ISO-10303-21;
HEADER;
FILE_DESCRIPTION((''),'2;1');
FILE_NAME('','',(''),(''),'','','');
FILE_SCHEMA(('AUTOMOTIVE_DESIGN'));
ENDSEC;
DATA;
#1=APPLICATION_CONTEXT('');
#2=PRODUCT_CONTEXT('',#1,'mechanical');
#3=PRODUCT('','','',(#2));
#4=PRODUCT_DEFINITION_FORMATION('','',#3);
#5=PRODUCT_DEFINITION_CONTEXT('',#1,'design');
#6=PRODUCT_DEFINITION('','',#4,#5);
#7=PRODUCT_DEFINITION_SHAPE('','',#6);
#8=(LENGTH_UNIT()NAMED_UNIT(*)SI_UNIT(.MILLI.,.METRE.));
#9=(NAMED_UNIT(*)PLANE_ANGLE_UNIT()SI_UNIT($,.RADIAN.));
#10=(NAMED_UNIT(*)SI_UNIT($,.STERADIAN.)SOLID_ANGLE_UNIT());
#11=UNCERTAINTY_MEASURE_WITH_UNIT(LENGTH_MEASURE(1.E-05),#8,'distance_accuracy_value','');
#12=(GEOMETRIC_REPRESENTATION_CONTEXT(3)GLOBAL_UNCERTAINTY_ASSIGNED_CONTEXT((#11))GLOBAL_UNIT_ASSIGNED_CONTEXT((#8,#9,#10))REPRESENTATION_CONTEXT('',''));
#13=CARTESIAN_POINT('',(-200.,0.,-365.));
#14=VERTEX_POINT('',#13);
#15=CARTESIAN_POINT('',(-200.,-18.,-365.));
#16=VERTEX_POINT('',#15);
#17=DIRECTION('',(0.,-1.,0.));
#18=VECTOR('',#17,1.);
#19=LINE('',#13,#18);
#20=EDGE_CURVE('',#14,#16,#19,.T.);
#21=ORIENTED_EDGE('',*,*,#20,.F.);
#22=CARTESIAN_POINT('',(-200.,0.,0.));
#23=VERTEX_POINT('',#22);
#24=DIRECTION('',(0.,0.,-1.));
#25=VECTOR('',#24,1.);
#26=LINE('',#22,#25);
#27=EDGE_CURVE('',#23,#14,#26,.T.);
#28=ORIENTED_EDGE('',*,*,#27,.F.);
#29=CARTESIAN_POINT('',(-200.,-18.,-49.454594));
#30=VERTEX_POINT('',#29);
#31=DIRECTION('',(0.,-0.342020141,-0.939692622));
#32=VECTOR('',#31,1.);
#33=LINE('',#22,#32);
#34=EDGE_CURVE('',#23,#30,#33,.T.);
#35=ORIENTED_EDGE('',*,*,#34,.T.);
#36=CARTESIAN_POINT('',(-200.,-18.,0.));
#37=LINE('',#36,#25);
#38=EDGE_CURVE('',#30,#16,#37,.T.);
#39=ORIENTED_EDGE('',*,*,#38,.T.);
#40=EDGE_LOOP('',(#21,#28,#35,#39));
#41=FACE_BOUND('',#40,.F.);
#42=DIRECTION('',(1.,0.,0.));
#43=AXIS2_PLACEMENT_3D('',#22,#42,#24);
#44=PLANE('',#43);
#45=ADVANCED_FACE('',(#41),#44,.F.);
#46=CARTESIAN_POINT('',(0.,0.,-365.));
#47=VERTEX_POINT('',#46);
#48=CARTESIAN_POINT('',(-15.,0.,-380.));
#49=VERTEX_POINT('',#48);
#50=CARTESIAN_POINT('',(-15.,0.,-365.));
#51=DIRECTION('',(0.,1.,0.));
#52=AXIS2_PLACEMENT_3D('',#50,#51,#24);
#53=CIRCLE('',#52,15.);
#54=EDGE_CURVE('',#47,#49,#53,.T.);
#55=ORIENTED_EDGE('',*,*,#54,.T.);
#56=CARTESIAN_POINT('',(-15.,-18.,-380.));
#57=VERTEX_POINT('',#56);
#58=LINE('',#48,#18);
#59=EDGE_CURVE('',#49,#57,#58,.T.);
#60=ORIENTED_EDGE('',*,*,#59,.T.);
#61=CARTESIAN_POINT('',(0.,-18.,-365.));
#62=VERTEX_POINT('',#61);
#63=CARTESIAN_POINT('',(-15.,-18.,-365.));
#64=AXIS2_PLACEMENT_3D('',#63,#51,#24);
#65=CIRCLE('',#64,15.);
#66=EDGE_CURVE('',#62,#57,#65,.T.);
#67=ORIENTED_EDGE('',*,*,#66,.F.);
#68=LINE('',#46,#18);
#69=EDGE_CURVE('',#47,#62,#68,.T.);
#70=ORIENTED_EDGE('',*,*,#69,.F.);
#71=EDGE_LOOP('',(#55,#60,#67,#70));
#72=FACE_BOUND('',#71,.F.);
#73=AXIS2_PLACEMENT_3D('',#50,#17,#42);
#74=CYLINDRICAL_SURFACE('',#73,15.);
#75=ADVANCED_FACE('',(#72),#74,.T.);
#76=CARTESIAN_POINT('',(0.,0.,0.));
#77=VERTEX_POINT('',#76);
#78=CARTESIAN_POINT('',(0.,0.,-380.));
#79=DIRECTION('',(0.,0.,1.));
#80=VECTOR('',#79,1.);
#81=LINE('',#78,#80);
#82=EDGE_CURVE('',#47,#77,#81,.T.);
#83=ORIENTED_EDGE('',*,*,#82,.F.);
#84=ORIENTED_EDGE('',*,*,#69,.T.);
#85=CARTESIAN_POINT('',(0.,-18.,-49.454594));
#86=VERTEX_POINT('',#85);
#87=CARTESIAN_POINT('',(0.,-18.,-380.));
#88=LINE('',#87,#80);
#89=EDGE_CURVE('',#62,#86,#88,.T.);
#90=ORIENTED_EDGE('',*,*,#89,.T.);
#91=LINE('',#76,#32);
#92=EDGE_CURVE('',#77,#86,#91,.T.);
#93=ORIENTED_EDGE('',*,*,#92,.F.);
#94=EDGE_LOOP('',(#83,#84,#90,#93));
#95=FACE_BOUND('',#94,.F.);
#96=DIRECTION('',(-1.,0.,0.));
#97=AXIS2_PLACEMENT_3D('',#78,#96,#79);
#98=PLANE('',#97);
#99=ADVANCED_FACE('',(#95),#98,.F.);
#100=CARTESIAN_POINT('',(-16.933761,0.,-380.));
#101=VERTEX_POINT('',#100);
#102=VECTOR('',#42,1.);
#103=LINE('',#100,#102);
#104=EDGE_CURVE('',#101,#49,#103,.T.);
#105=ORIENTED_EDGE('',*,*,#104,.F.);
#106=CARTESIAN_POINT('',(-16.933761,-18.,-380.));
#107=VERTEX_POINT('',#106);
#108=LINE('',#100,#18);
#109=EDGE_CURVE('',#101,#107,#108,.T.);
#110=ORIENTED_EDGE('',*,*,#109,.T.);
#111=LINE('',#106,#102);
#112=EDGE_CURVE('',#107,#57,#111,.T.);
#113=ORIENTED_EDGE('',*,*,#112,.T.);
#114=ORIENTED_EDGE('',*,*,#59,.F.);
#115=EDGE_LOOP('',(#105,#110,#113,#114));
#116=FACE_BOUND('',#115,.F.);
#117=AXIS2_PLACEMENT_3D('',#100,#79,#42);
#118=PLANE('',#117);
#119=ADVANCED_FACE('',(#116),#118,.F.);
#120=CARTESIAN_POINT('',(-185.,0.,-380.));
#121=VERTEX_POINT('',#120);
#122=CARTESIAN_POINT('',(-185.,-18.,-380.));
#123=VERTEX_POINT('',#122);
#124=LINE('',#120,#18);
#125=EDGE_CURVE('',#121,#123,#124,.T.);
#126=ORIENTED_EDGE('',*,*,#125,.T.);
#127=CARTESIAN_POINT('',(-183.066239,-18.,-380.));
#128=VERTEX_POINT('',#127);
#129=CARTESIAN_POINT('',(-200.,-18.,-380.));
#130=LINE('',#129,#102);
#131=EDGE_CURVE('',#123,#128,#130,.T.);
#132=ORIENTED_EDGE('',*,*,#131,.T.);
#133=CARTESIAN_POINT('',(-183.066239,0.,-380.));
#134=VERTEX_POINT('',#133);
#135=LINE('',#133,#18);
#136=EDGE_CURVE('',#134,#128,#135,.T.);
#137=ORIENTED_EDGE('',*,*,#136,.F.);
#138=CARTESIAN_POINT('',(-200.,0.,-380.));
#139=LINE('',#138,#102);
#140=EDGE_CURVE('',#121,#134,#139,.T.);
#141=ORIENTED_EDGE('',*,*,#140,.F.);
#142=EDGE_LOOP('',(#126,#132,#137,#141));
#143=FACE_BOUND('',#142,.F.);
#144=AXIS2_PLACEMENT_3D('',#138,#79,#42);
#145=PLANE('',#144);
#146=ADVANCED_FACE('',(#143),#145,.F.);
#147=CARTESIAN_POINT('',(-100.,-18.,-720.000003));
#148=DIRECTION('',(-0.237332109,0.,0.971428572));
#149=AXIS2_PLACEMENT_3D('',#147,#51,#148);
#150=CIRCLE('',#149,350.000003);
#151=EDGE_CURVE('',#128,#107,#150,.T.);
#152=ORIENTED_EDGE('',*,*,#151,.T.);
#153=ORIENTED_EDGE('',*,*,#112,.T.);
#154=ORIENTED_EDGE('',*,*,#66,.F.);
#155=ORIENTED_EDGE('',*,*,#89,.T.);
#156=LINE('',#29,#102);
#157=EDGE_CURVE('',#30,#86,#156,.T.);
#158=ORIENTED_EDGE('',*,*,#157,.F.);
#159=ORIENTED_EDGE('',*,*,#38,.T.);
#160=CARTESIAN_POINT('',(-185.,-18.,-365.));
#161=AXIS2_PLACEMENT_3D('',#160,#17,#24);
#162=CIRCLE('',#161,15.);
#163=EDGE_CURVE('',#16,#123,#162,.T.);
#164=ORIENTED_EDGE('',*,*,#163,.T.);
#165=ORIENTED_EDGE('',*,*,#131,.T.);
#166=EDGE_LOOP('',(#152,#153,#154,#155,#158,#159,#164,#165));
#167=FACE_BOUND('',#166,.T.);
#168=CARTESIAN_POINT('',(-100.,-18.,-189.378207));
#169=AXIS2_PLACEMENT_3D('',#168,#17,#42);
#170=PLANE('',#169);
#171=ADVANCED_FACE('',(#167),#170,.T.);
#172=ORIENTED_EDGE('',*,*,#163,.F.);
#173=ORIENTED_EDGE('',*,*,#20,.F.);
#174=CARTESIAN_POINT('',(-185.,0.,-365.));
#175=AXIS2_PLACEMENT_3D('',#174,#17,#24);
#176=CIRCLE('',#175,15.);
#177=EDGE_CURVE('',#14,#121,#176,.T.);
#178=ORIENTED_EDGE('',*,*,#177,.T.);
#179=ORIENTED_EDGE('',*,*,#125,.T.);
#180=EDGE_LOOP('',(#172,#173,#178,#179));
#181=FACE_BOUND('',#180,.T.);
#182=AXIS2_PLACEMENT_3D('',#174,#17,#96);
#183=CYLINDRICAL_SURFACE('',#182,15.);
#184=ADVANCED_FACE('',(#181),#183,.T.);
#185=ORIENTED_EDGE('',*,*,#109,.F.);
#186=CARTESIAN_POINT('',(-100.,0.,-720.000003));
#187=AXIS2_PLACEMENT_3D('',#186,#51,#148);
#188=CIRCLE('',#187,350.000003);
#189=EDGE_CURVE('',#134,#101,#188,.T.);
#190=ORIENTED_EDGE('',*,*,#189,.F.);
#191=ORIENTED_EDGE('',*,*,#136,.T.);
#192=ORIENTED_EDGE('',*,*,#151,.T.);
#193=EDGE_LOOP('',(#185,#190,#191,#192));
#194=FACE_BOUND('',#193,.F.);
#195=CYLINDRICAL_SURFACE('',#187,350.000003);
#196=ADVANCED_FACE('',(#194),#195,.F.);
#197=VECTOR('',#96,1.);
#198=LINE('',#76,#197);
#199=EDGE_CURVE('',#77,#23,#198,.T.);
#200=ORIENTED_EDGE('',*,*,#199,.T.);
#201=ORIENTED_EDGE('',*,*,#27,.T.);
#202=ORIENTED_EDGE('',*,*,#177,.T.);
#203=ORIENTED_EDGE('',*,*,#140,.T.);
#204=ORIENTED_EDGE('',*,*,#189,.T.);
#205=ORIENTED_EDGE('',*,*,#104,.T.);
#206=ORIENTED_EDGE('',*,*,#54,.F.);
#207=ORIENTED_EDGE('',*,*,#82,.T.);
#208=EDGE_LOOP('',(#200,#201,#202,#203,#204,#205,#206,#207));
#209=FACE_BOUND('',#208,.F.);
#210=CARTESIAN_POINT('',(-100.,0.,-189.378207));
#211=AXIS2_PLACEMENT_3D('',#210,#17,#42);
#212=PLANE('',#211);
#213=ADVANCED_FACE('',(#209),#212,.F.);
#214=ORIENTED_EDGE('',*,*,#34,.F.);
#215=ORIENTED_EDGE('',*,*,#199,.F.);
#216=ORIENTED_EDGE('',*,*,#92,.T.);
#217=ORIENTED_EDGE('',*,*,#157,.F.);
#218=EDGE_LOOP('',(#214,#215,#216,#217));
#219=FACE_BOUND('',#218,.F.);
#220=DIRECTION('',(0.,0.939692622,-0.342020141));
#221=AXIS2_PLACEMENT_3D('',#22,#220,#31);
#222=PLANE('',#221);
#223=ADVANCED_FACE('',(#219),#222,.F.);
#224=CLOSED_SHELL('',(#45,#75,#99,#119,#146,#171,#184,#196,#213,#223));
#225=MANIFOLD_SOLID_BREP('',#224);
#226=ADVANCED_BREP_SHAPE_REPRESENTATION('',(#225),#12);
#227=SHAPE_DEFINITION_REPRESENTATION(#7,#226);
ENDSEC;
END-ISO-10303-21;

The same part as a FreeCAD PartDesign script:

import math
import FreeCAD as App
import Part
import Sketcher
from FreeCAD import Vector
Q = App.Units.Quantity


def edges_at(feature, points):
    """Names of the edges that pass closest to the given points."""
    edges = feature.Shape.Edges
    near = lambda p: min(range(len(edges)), key=lambda i: edges[i].distToShape(Part.Vertex(*p))[0])
    return sorted({f"Edge{near(p) + 1}" for p in points})


def add_polygon(sketch, points):
    """Adds a closed chain of lines whose ends are joined by coincident constraints."""
    first, n = sketch.GeometryCount, len(points)
    for a, b in zip(points, points[1:] + points[:1]):
        sketch.addGeometry(Part.LineSegment(App.Vector(*a, 0), App.Vector(*b, 0)), False)
    for i in range(n):
        sketch.addConstraint(Sketcher.Constraint("Coincident", first + i, 2, first + (i + 1) % n, 1))

doc = App.newDocument("Part")
body = doc.addObject("PartDesign::Body", "Body")

sketch1 = body.newObject("Sketcher::SketchObject", "Sketch")
sketch1.AttachmentSupport = (doc.getObject("XZ_Plane"), [""])
sketch1.MapMode = "FlatFace"
sketch1.addGeometry([
    Part.LineSegment(Vector(0, -380, 0), Vector(0, 0, 0)),
    Part.LineSegment(Vector(0, 0, 0), Vector(-200, 0, 0)),
    Part.LineSegment(Vector(-200, 0, 0), Vector(-200, -380, 0)),
    Part.LineSegment(Vector(-200, -380, 0), Vector(-183, -380, 0)),
    Part.ArcOfCircle(Part.Circle(Vector(-100, -720, 0), Vector(0, 0, 1), 350), math.radians(76), math.radians(104)),
    Part.LineSegment(Vector(-17, -380, 0), Vector(0, -380, 0)),
], False)
sketch1.addConstraint([
    Sketcher.Constraint("Coincident", 0, 2, 1, 1),
    Sketcher.Constraint("Coincident", 1, 2, 2, 1),
    Sketcher.Constraint("Coincident", 2, 2, 3, 1),
    Sketcher.Constraint("Coincident", 3, 2, 4, 2),
    Sketcher.Constraint("Coincident", 4, 1, 5, 1),
    Sketcher.Constraint("Coincident", 5, 2, 0, 1),
    Sketcher.Constraint("Vertical", 0),
    Sketcher.Constraint("Horizontal", 1),
    Sketcher.Constraint("Vertical", 2),
    Sketcher.Constraint("Horizontal", 3),
    Sketcher.Constraint("Horizontal", 5),
    Sketcher.Constraint("Coincident", 0, 2, -1, 1),
    Sketcher.Constraint("Horizontal", 3, 2, 4, 1),
    Sketcher.Constraint("Equal", 3, 5),
    Sketcher.Constraint("DistanceX", 1, 2, 1, 1, Q("200 mm")),
    Sketcher.Constraint("DistanceY", 0, 1, 0, 2, Q("380 mm")),
    Sketcher.Constraint("Radius", 4, Q("350.000003 mm")),
    Sketcher.Constraint("DistanceX", 3, 1, 3, 2, Q("16.933761 mm")),
])
pad1 = body.newObject("PartDesign::Pad", "Pad")
pad1.Profile = sketch1
pad1.Length = 18

sketch2 = body.newObject("Sketcher::SketchObject", "Sketch001")
sketch2.AttachmentSupport = (doc.getObject("YZ_Plane"), [""])
sketch2.MapMode = "FlatFace"
sketch2.AttachmentOffset = App.Placement(Vector(0, 0, -200), App.Rotation())
add_polygon(sketch2, [(-18, -49), (-18, 0), (0, 0)])
sketch2.addConstraint([
    Sketcher.Constraint("Vertical", 0),
    Sketcher.Constraint("Horizontal", 1),
    Sketcher.Constraint("Coincident", 1, 2, -1, 1),
    Sketcher.Constraint("DistanceX", 1, 1, 1, 2, Q("18 mm")),
    Sketcher.Constraint("Angle", 2, Q("-110 deg")),
])
pocket1 = body.newObject("PartDesign::Pocket", "Pocket")
pocket1.Profile = sketch2
pocket1.Type = "ThroughAll"
pocket1.Reversed = True
doc.recompute()

fillet = body.newObject("PartDesign::Fillet", "Fillet")
fillet.Base = (pocket1, edges_at(pocket1, [(-200, -9, -380), (0, -9, -380)]))
fillet.Radius = 15

doc.recompute()
